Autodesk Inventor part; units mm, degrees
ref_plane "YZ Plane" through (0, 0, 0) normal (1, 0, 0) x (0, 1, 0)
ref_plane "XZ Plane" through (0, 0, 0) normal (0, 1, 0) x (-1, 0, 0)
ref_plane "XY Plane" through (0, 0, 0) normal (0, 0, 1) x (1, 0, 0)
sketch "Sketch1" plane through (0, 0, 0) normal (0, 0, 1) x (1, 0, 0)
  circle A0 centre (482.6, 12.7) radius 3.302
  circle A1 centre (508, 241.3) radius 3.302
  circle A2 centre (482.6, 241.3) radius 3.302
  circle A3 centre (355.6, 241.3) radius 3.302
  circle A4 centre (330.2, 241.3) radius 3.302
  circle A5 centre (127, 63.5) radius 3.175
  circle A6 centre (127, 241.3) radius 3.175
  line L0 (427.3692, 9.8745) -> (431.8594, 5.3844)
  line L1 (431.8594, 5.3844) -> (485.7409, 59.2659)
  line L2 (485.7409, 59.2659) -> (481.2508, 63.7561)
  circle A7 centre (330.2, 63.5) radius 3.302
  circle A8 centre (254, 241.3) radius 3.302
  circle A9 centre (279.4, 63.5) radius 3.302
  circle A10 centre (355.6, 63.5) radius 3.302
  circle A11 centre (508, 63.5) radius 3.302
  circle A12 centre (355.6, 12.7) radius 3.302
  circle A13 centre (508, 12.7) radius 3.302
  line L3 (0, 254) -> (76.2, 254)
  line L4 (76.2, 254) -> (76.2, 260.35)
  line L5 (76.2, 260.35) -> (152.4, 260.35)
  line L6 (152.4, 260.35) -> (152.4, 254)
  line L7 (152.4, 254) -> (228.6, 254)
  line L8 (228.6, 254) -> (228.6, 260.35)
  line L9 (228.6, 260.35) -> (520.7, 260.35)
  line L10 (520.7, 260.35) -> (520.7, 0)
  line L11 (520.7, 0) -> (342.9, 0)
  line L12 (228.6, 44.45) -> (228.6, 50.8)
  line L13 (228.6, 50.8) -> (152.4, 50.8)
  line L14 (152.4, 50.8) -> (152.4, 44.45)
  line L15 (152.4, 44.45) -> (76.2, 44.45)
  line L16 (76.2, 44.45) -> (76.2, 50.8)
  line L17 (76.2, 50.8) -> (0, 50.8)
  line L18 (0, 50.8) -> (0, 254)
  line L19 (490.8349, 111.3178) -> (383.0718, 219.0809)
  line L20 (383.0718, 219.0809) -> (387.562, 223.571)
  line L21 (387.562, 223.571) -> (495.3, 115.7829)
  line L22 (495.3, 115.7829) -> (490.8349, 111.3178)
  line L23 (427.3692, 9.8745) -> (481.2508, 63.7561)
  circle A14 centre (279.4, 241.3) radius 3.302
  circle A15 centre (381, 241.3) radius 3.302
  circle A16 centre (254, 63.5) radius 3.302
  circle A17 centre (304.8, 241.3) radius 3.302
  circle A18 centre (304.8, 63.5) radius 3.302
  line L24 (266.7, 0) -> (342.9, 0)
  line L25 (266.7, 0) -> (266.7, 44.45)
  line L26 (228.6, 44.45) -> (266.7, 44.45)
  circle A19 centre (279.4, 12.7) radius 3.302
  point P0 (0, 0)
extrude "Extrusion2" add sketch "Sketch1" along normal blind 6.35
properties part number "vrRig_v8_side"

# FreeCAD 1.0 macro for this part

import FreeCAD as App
import Part
import Sketcher

V = App.Vector
Q = App.Units.Quantity

doc = App.newDocument("Part")
body = doc.addObject("PartDesign::Body", "Body")

# Sketch on XY plane
sketch1 = doc.addObject("Sketcher::SketchObject", "Sketch")
body.addObject(sketch1)
sketch1.AttachmentSupport = (doc.XY_Plane, [""])
sketch1.MapMode = "FlatFace"
sketch1.addGeometry([
    Part.LineSegment(V(76.2, 254, 0), V(0, 254, 0)),  # 0
    Part.LineSegment(V(0, 254, 0), V(0, 50.8, 0)),  # 1
    Part.LineSegment(V(0, 50.8, 0), V(76.2, 50.8, 0)),  # 2
    Part.LineSegment(V(76.2, 50.8, 0), V(76.2, 44.45, 0)),  # 3
    Part.LineSegment(V(76.2, 44.45, 0), V(152.4, 44.45, 0)),  # 4
    Part.LineSegment(V(152.4, 44.45, 0), V(152.4, 50.8, 0)),  # 5
    Part.LineSegment(V(152.4, 50.8, 0), V(228.6, 50.8, 0)),  # 6
    Part.LineSegment(V(228.6, 50.8, 0), V(228.6, 44.45, 0)),  # 7
    Part.LineSegment(V(228.6, 44.45, 0), V(266.7, 44.45, 0)),  # 8
    Part.LineSegment(V(266.7, 44.45, 0), V(266.7, 0, 0)),  # 9
    Part.LineSegment(V(266.7, 0, 0), V(520.7, 0, 0)),  # 10
    Part.LineSegment(V(520.7, 0, 0), V(520.7, 260.35, 0)),  # 11
    Part.LineSegment(V(520.7, 260.35, 0), V(228.6, 260.35, 0)),  # 12
    Part.LineSegment(V(228.6, 260.35, 0), V(228.6, 254, 0)),  # 13
    Part.LineSegment(V(228.6, 254, 0), V(152.4, 254, 0)),  # 14
    Part.LineSegment(V(152.4, 254, 0), V(152.4, 260.35, 0)),  # 15
    Part.LineSegment(V(152.4, 260.35, 0), V(76.2, 260.35, 0)),  # 16
    Part.LineSegment(V(76.2, 260.35, 0), V(76.2, 254, 0)),  # 17
    Part.Circle(V(127, 63.5, 0), V(0, 0, 1), 3.175),  # 18
    Part.Circle(V(254, 63.5, 0), V(0, 0, 1), 3.302),  # 19
    Part.Circle(V(279.4, 12.7, 0), V(0, 0, 1), 3.302),  # 20
    Part.Circle(V(355.6, 12.7, 0), V(0, 0, 1), 3.302),  # 21
    Part.Circle(V(279.4, 63.5, 0), V(0, 0, 1), 3.302),  # 22
    Part.Circle(V(304.8, 63.5, 0), V(0, 0, 1), 3.302),  # 23
    Part.Circle(V(330.2, 63.5, 0), V(0, 0, 1), 3.302),  # 24
    Part.Circle(V(355.6, 63.5, 0), V(0, 0, 1), 3.302),  # 25
    Part.Circle(V(482.6, 12.7, 0), V(0, 0, 1), 3.302),  # 26
    Part.Circle(V(508, 12.7, 0), V(0, 0, 1), 3.302),  # 27
    Part.LineSegment(V(431.8594, 5.3844, 0), V(427.3692, 9.8745, 0)),  # 28
    Part.LineSegment(V(427.3692, 9.8745, 0), V(481.2508, 63.7561, 0)),  # 29
    Part.LineSegment(V(481.2508, 63.7561, 0), V(485.7409, 59.2659, 0)),  # 30
    Part.LineSegment(V(485.7409, 59.2659, 0), V(431.8594, 5.3844, 0)),  # 31
    Part.Circle(V(508, 63.5, 0), V(0, 0, 1), 3.302),  # 32
    Part.Circle(V(127, 241.3, 0), V(0, 0, 1), 3.175),  # 33
    Part.Circle(V(254, 241.3, 0), V(0, 0, 1), 3.302),  # 34
    Part.LineSegment(V(495.3, 115.7829, 0), V(490.8349, 111.3178, 0)),  # 35
    Part.LineSegment(V(490.8349, 111.3178, 0), V(383.0718, 219.0809, 0)),  # 36
    Part.LineSegment(V(383.0718, 219.0809, 0), V(387.562, 223.571, 0)),  # 37
    Part.LineSegment(V(387.562, 223.571, 0), V(495.3, 115.7829, 0)),  # 38
    Part.Circle(V(279.4, 241.3, 0), V(0, 0, 1), 3.302),  # 39
    Part.Circle(V(304.8, 241.3, 0), V(0, 0, 1), 3.302),  # 40
    Part.Circle(V(330.2, 241.3, 0), V(0, 0, 1), 3.302),  # 41
    Part.Circle(V(355.6, 241.3, 0), V(0, 0, 1), 3.302),  # 42
    Part.Circle(V(381, 241.3, 0), V(0, 0, 1), 3.302),  # 43
    Part.Circle(V(482.6, 241.3, 0), V(0, 0, 1), 3.302),  # 44
    Part.Circle(V(508, 241.3, 0), V(0, 0, 1), 3.302),  # 45
], False)
sketch1.addConstraint([
    Sketcher.Constraint("Coincident", 0, 2, 1, 1),
    Sketcher.Constraint("Coincident", 1, 2, 2, 1),
    Sketcher.Constraint("Coincident", 2, 2, 3, 1),
    Sketcher.Constraint("Coincident", 3, 2, 4, 1),
    Sketcher.Constraint("Coincident", 4, 2, 5, 1),
    Sketcher.Constraint("Coincident", 5, 2, 6, 1),
    Sketcher.Constraint("Coincident", 6, 2, 7, 1),
    Sketcher.Constraint("Coincident", 7, 2, 8, 1),
    Sketcher.Constraint("Coincident", 8, 2, 9, 1),
    Sketcher.Constraint("Coincident", 9, 2, 10, 1),
    Sketcher.Constraint("Coincident", 10, 2, 11, 1),
    Sketcher.Constraint("Coincident", 11, 2, 12, 1),
    Sketcher.Constraint("Coincident", 12, 2, 13, 1),
    Sketcher.Constraint("Coincident", 13, 2, 14, 1),
    Sketcher.Constraint("Coincident", 14, 2, 15, 1),
    Sketcher.Constraint("Coincident", 15, 2, 16, 1),
    Sketcher.Constraint("Coincident", 16, 2, 17, 1),
    Sketcher.Constraint("Coincident", 17, 2, 0, 1),
    Sketcher.Constraint("Coincident", 28, 2, 29, 1),
    Sketcher.Constraint("Coincident", 29, 2, 30, 1),
    Sketcher.Constraint("Coincident", 30, 2, 31, 1),
    Sketcher.Constraint("Coincident", 31, 2, 28, 1),
    Sketcher.Constraint("Coincident", 35, 2, 36, 1),
    Sketcher.Constraint("Coincident", 36, 2, 37, 1),
    Sketcher.Constraint("Coincident", 37, 2, 38, 1),
    Sketcher.Constraint("Coincident", 38, 2, 35, 1),
    Sketcher.Constraint("Horizontal", 0),
    Sketcher.Constraint("Vertical", 1),
    Sketcher.Constraint("Horizontal", 2),
    Sketcher.Constraint("Vertical", 3),
    Sketcher.Constraint("Horizontal", 4),
    Sketcher.Constraint("Vertical", 5),
    Sketcher.Constraint("Horizontal", 6),
    Sketcher.Constraint("Vertical", 7),
    Sketcher.Constraint("Horizontal", 8),
    Sketcher.Constraint("Vertical", 9),
    Sketcher.Constraint("Horizontal", 10),
    Sketcher.Constraint("Vertical", 11),
    Sketcher.Constraint("Horizontal", 12),
    Sketcher.Constraint("Vertical", 13),
    Sketcher.Constraint("Horizontal", 14),
    Sketcher.Constraint("Vertical", 15),
    Sketcher.Constraint("Horizontal", 16),
    Sketcher.Constraint("Vertical", 17),
    Sketcher.Constraint("PointOnObject", 0, 2, -2),
    Sketcher.Constraint("PointOnObject", 9, 2, -1),
    Sketcher.Constraint("Diameter", 18, Q("0.25 in")),
    Sketcher.Constraint("Diameter", 19, Q("0.26 in")),
    Sketcher.Constraint("Diameter", 20, Q("0.26 in")),
    Sketcher.Constraint("Diameter", 21, Q("0.26 in")),
    Sketcher.Constraint("Diameter", 22, Q("0.26 in")),
    Sketcher.Constraint("Diameter", 23, Q("0.26 in")),
    Sketcher.Constraint("Diameter", 24, Q("0.26 in")),
    Sketcher.Constraint("Diameter", 25, Q("0.26 in")),
    Sketcher.Constraint("Diameter", 26, Q("0.26 in")),
    Sketcher.Constraint("Diameter", 27, Q("0.26 in")),
    Sketcher.Constraint("Diameter", 32, Q("0.26 in")),
    Sketcher.Constraint("Diameter", 33, Q("0.25 in")),
    Sketcher.Constraint("Diameter", 34, Q("0.26 in")),
    Sketcher.Constraint("Diameter", 39, Q("0.26 in")),
    Sketcher.Constraint("Diameter", 40, Q("0.26 in")),
    Sketcher.Constraint("Diameter", 41, Q("0.26 in")),
    Sketcher.Constraint("Diameter", 42, Q("0.26 in")),
    Sketcher.Constraint("Diameter", 43, Q("0.26 in")),
    Sketcher.Constraint("Diameter", 44, Q("0.26 in")),
    Sketcher.Constraint("Diameter", 45, Q("0.26 in")),
    Sketcher.Constraint("DistanceX", 0, 2, 0, 1, Q("3 in")),
    Sketcher.Constraint("DistanceX", 2, 1, 2, 2, Q("3 in")),
    Sketcher.Constraint("DistanceX", 4, 1, 4, 2, Q("3 in")),
    Sketcher.Constraint("DistanceX", 6, 1, 6, 2, Q("3 in")),
    Sketcher.Constraint("DistanceX", 10, 1, 10, 2, Q("10 in")),
    Sketcher.Constraint("DistanceX", 14, 2, 14, 1, Q("3 in")),
    Sketcher.Constraint("DistanceX", 16, 2, 16, 1, Q("3 in")),
    Sketcher.Constraint("DistanceY", 1, 2, 1, 1, Q("8 in")),
    Sketcher.Constraint("Distance", 29, Q("3 in")),
    Sketcher.Constraint("Distance", 31, Q("3 in")),
    Sketcher.Constraint("Distance", 36, Q("6 in")),
    Sketcher.Constraint("Distance", 38, Q("6 in")),
    Sketcher.Constraint("DistanceX", 8, 1, 8, 2, Q("1.5 in")),
    Sketcher.Constraint("DistanceX", -1, 1, 18, 3, Q("5 in")),
    Sketcher.Constraint("DistanceX", -1, 1, 19, 3, Q("10 in")),
    Sketcher.Constraint("DistanceX", -1, 1, 20, 3, Q("11 in")),
    Sketcher.Constraint("DistanceX", -1, 1, 21, 3, Q("14 in")),
    Sketcher.Constraint("DistanceX", -1, 1, 22, 3, Q("11 in")),
    Sketcher.Constraint("DistanceX", -1, 1, 23, 3, Q("12 in")),
    Sketcher.Constraint("DistanceX", -1, 1, 24, 3, Q("13 in")),
    Sketcher.Constraint("DistanceX", -1, 1, 25, 3, Q("14 in")),
    Sketcher.Constraint("DistanceX", -1, 1, 26, 3, Q("19 in")),
    Sketcher.Constraint("DistanceX", -1, 1, 27, 3, Q("20 in")),
    Sketcher.Constraint("DistanceX", -1, 1, 32, 3, Q("20 in")),
    Sketcher.Constraint("DistanceX", -1, 1, 33, 3, Q("5 in")),
    Sketcher.Constraint("DistanceX", -1, 1, 34, 3, Q("10 in")),
    Sketcher.Constraint("DistanceX", -1, 1, 39, 3, Q("11 in")),
    Sketcher.Constraint("DistanceX", -1, 1, 40, 3, Q("12 in")),
    Sketcher.Constraint("DistanceX", -1, 1, 41, 3, Q("13 in")),
    Sketcher.Constraint("DistanceX", -1, 1, 42, 3, Q("14 in")),
    Sketcher.Constraint("DistanceX", -1, 1, 43, 3, Q("15 in")),
    Sketcher.Constraint("DistanceX", -1, 1, 44, 3, Q("19 in")),
    Sketcher.Constraint("DistanceX", -1, 1, 45, 3, Q("20 in")),
    Sketcher.Constraint("DistanceY", -1, 1, 0, 2, Q("10 in")),
    Sketcher.Constraint("DistanceY", -1, 1, 5, 2, Q("2 in")),
    Sketcher.Constraint("DistanceY", -1, 1, 13, 2, Q("10 in")),
    Sketcher.Constraint("DistanceY", 20, 3, 19, 3, Q("2 in")),
    Sketcher.Constraint("DistanceY", 20, 3, 18, 3, Q("2 in")),
    Sketcher.Constraint("DistanceY", 21, 3, 19, 3, Q("2 in")),
    Sketcher.Constraint("DistanceY", 20, 3, 22, 3, Q("2 in")),
    Sketcher.Constraint("DistanceY", 20, 3, 23, 3, Q("2 in")),
    Sketcher.Constraint("DistanceY", 21, 3, 24, 3, Q("2 in")),
    Sketcher.Constraint("DistanceY", 21, 3, 25, 3, Q("2 in")),
    Sketcher.Constraint("DistanceY", 26, 3, 25, 3, Q("2 in")),
    Sketcher.Constraint("DistanceY", 27, 3, 25, 3, Q("2 in")),
    Sketcher.Constraint("DistanceY", 27, 3, 32, 3, Q("2 in")),
    Sketcher.Constraint("DistanceY", 18, 3, 33, 3, Q("7 in")),
    Sketcher.Constraint("DistanceY", 19, 3, 34, 3, Q("7 in")),
    Sketcher.Constraint("DistanceY", 22, 3, 39, 3, Q("7 in")),
    Sketcher.Constraint("DistanceY", 23, 3, 40, 3, Q("7 in")),
    Sketcher.Constraint("DistanceY", 24, 3, 41, 3, Q("7 in")),
    Sketcher.Constraint("DistanceY", 25, 3, 42, 3, Q("7 in")),
    Sketcher.Constraint("DistanceY", 32, 3, 44, 3, Q("7 in")),
    Sketcher.Constraint("DistanceY", 32, 3, 45, 3, Q("7 in")),
    Sketcher.Constraint("DistanceY", 3, 2, 3, 1, Q("0.25 in")),
    Sketcher.Constraint("DistanceY", 7, 2, 7, 1, Q("0.25 in")),
    Sketcher.Constraint("DistanceY", 11, 1, 11, 2, Q("10.25 in")),
    Sketcher.Constraint("DistanceY", 15, 1, 15, 2, Q("0.25 in")),
    Sketcher.Constraint("DistanceY", -1, 1, 18, 3, Q("2.5 in")),
    Sketcher.Constraint("DistanceY", -1, 1, 43, 3, Q("9.5 in")),
    Sketcher.Constraint("DistanceX", -1, 1, 38, 2, Q("19.5 in")),
    Sketcher.Constraint("Distance", 28, Q("0.25 in")),
    Sketcher.Constraint("Distance", 30, Q("0.25 in")),
    Sketcher.Constraint("Distance", 37, Q("0.25 in")),
    Sketcher.Constraint("DistanceY", -1, 1, 37, 2, Q("8.802 in")),
    Sketcher.Constraint("Distance", 35, Q("0.2486 in")),
    Sketcher.Constraint("DistanceY", -1, 1, 30, 2, Q("2.3333 in")),
    Sketcher.Constraint("DistanceX", -1, 1, 35, 2, Q("19.3242 in")),
    Sketcher.Constraint("DistanceY", -1, 1, 35, 2, Q("4.3826 in")),
    Sketcher.Constraint("DistanceY", 31, 2, 29, 2, Q("2.2981 in")),
    Sketcher.Constraint("DistanceY", 29, 2, 35, 2, Q("1.8725 in")),
    Sketcher.Constraint("DistanceX", -1, 1, 28, 2, 427.3692),
])
pad1 = doc.addObject("PartDesign::Pad", "Pad")
body.addObject(pad1)
pad1.Profile = sketch1
pad1.Length = Q("0.25 in")

doc.recompute()
